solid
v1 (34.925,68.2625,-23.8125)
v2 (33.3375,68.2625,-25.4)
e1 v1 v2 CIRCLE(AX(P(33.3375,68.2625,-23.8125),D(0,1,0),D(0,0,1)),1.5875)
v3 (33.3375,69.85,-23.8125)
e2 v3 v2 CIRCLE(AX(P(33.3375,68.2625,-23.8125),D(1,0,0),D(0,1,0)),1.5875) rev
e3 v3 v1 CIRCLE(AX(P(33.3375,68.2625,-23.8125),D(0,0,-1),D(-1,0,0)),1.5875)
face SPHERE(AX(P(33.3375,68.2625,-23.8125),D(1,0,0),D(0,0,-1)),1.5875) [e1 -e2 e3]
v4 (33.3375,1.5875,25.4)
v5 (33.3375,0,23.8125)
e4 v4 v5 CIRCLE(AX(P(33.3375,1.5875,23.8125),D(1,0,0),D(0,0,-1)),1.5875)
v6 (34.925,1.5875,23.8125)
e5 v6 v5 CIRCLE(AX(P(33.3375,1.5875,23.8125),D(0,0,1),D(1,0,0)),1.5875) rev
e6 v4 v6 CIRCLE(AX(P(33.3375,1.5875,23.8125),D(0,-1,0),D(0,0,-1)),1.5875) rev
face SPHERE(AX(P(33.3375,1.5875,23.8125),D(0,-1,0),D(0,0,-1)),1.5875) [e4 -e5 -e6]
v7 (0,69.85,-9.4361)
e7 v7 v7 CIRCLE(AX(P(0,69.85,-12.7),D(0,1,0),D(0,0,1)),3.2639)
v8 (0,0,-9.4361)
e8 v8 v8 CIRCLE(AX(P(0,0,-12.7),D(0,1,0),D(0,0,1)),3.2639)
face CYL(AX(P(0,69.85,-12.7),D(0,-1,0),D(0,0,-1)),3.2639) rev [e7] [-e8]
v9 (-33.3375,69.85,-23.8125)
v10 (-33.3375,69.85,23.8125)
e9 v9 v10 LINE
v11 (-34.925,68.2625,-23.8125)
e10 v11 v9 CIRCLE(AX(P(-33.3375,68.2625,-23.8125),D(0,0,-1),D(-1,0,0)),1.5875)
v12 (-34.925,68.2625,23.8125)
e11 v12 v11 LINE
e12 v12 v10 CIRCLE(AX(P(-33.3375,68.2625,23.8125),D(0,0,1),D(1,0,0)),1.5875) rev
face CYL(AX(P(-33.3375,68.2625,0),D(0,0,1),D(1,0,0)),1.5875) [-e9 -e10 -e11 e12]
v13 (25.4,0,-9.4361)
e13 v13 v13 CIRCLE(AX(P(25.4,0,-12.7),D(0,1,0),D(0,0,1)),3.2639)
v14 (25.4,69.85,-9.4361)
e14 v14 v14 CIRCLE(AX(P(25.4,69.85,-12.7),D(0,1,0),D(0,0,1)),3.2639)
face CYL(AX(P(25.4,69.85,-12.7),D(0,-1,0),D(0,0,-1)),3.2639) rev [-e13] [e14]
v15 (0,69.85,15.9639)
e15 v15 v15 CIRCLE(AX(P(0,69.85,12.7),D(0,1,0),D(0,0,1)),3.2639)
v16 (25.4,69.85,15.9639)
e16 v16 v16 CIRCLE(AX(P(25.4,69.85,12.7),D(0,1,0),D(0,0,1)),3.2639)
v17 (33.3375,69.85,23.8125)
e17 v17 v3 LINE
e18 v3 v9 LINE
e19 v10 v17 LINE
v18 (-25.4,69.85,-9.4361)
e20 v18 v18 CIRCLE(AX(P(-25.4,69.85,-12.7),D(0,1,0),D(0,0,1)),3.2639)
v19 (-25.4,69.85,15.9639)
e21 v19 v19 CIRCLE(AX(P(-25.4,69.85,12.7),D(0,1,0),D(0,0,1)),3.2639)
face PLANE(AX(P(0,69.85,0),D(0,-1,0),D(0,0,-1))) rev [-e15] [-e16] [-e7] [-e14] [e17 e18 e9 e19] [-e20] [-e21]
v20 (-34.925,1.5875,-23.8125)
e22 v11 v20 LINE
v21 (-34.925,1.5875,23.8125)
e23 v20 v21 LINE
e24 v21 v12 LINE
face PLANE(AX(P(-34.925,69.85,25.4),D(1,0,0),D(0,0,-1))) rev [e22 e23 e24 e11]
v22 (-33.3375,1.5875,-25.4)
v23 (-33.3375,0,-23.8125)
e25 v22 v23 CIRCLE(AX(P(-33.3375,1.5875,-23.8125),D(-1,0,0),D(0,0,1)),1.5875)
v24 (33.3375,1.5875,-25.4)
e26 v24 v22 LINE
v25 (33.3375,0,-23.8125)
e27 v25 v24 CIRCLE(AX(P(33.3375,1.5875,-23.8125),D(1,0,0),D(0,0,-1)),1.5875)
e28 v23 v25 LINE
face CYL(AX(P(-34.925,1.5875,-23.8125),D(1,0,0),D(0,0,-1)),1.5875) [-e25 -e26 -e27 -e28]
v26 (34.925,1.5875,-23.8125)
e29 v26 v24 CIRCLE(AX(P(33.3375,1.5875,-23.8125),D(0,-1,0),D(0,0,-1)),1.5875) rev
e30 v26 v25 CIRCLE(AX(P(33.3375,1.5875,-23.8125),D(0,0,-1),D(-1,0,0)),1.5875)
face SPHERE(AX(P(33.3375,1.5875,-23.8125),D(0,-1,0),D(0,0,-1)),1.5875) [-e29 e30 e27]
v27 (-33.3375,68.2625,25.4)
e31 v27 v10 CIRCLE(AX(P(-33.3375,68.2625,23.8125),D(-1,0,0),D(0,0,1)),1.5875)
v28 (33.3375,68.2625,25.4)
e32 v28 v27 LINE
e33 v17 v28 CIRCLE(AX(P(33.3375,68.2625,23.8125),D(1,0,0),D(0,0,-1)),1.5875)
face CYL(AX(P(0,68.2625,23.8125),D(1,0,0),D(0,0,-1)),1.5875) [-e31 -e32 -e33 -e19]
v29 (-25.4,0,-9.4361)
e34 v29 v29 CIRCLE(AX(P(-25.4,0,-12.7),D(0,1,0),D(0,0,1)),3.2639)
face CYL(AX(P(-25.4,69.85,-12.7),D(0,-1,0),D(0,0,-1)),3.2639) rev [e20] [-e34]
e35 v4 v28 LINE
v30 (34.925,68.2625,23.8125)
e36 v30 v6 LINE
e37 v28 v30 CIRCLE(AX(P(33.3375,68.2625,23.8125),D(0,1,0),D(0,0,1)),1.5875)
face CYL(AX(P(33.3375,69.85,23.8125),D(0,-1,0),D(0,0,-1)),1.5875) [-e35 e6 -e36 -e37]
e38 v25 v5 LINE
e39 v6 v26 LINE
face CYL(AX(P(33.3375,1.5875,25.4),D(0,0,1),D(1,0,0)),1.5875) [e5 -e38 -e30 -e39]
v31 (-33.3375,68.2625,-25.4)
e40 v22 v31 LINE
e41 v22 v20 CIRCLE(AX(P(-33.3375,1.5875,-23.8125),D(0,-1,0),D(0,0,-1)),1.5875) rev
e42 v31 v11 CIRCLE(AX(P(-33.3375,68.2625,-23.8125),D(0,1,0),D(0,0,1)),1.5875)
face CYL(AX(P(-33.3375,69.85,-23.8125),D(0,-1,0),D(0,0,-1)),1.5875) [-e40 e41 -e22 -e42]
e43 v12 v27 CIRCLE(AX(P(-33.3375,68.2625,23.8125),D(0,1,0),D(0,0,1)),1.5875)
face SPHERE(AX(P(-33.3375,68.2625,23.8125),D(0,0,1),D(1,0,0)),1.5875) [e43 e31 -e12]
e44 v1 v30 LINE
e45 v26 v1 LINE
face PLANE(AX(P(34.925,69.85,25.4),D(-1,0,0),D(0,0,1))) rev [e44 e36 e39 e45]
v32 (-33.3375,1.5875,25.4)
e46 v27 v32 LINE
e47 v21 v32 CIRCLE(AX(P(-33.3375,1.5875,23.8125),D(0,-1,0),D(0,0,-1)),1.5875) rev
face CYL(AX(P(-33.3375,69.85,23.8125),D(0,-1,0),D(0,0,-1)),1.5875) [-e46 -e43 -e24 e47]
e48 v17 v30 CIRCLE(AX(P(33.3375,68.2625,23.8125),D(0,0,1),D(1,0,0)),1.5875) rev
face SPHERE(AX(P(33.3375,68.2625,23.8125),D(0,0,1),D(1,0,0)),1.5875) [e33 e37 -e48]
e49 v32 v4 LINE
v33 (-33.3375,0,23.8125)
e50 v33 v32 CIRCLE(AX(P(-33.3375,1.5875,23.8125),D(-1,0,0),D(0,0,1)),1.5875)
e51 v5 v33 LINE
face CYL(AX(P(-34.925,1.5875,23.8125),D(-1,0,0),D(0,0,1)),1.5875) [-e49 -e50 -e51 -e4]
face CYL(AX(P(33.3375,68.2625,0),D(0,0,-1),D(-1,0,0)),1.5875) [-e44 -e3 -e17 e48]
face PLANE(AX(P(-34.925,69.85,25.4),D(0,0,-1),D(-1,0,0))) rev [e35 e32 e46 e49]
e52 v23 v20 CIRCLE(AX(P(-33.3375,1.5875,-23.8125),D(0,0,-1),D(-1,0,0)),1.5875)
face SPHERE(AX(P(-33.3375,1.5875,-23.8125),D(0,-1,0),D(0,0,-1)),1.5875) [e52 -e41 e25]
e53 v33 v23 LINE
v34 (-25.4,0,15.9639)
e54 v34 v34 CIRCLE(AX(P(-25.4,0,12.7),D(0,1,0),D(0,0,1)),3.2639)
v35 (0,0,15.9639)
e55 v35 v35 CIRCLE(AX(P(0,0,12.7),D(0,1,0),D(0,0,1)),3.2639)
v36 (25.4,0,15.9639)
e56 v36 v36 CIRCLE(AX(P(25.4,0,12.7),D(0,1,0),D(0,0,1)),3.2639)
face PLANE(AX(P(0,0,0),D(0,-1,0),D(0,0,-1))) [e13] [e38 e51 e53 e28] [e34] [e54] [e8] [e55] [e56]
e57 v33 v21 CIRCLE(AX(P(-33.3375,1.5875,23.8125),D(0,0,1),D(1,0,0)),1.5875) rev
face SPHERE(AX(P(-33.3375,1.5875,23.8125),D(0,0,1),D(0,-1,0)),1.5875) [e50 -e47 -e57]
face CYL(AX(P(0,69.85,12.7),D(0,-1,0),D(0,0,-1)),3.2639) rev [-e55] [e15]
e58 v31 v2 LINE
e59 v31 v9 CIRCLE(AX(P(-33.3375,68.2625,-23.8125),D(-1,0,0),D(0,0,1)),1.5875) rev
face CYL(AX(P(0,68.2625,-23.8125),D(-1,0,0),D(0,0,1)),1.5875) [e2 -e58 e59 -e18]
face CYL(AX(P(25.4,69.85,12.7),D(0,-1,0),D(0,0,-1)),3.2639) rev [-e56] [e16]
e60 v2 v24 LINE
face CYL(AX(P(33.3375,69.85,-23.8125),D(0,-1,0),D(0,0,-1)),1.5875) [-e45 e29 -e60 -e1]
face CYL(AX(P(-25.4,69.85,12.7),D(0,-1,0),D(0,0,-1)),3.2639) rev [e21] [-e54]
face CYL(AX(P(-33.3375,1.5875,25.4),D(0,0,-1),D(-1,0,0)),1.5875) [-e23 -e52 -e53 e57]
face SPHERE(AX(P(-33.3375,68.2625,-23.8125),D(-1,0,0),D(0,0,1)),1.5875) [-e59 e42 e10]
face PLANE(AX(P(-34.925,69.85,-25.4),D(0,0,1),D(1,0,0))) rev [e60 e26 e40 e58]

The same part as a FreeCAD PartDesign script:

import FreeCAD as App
import Part
import Sketcher
Q = App.Units.Quantity


def edges_at(feature, points):
    """Names of the edges that pass closest to the given points."""
    edges = feature.Shape.Edges
    near = lambda p: min(range(len(edges)), key=lambda i: edges[i].distToShape(Part.Vertex(*p))[0])
    return sorted({f"Edge{near(p) + 1}" for p in points})

doc = App.newDocument("Part")
body = doc.addObject("PartDesign::Body", "Body")

# Sketch on XZ plane
sketch1 = body.newObject("Sketcher::SketchObject", "Sketch")
sketch1.AttachmentSupport = (doc.getObject("XZ_Plane"), [""])
sketch1.MapMode = "FlatFace"
sketch1.addGeometry(Part.LineSegment(App.Vector(-34.9, -25.4, 0), App.Vector(-34.9, 25.4, 0)), False)
sketch1.addGeometry(Part.LineSegment(App.Vector(-34.9, 25.4, 0), App.Vector(34.9, 25.4, 0)), False)
sketch1.addGeometry(Part.LineSegment(App.Vector(34.9, 25.4, 0), App.Vector(34.9, -25.4, 0)), False)
sketch1.addGeometry(Part.LineSegment(App.Vector(34.9, -25.4, 0), App.Vector(-34.9, -25.4, 0)), False)
sketch1.addGeometry(Part.Circle(App.Vector(-25.4, 12.7, 0), App.Vector(0, 0, 1), 3.3), False)
sketch1.addGeometry(Part.Circle(App.Vector(0, 12.7, 0), App.Vector(0, 0, 1), 3.3), False)
sketch1.addGeometry(Part.Circle(App.Vector(25.4, 12.7, 0), App.Vector(0, 0, 1), 3.3), False)
sketch1.addGeometry(Part.Circle(App.Vector(-25.4, -12.7, 0), App.Vector(0, 0, 1), 3.3), False)
sketch1.addGeometry(Part.Circle(App.Vector(0, -12.7, 0), App.Vector(0, 0, 1), 3.3), False)
sketch1.addGeometry(Part.Circle(App.Vector(25.4, -12.7, 0), App.Vector(0, 0, 1), 3.3), False)
sketch1.addConstraint(Sketcher.Constraint("Coincident", 0, 2, 1, 1))
sketch1.addConstraint(Sketcher.Constraint("Coincident", 1, 2, 2, 1))
sketch1.addConstraint(Sketcher.Constraint("Coincident", 2, 2, 3, 1))
sketch1.addConstraint(Sketcher.Constraint("Coincident", 3, 2, 0, 1))
sketch1.addConstraint(Sketcher.Constraint("Vertical", 0))
sketch1.addConstraint(Sketcher.Constraint("Horizontal", 1))
sketch1.addConstraint(Sketcher.Constraint("Vertical", 2))
sketch1.addConstraint(Sketcher.Constraint("Horizontal", 3))
sketch1.addConstraint(Sketcher.Constraint("Equal", 4, 5))
sketch1.addConstraint(Sketcher.Constraint("Equal", 5, 6))
sketch1.addConstraint(Sketcher.Constraint("Equal", 6, 7))
sketch1.addConstraint(Sketcher.Constraint("Equal", 7, 8))
sketch1.addConstraint(Sketcher.Constraint("Equal", 8, 9))
sketch1.addConstraint(Sketcher.Constraint("Symmetric", 6, 3, 7, 3, -1, 1))
sketch1.addConstraint(Sketcher.Constraint("Symmetric", 5, 3, 8, 3, -1, 1))
sketch1.addConstraint(Sketcher.Constraint("Symmetric", 4, 3, 9, 3, -1, 1))
sketch1.addConstraint(Sketcher.Constraint("Symmetric", 0, 2, 2, 2, -1, 1))
sketch1.addConstraint(Sketcher.Constraint("Symmetric", 4, 3, 6, 3, -2))
sketch1.addConstraint(Sketcher.Constraint("PointOnObject", 5, 3, -2))
sketch1.addConstraint(Sketcher.Constraint("Horizontal", 4, 3, 5, 3))
sketch1.addConstraint(Sketcher.Constraint("DistanceY", 0, 1, 0, 2, Q("2 in")))
sketch1.addConstraint(Sketcher.Constraint("Diameter", 4, Q("0.257 in")))
sketch1.addConstraint(Sketcher.Constraint("DistanceX", 4, 3, -1, 1, Q("1 in")))
sketch1.addConstraint(Sketcher.Constraint("DistanceY", 7, 3, 4, 3, Q("1 in")))
sketch1.addConstraint(Sketcher.Constraint("DistanceX", 1, 1, 1, 2, Q("2.75 in")))
pad1 = body.newObject("PartDesign::Pad", "Pad")
pad1.Profile = sketch1
pad1.Length = Q("2.75 in")
pad1.Reversed = True
doc.recompute()

fillet = body.newObject("PartDesign::Fillet", "Fillet")
fillet.Base = (pad1, edges_at(pad1, [
    (-34.925, 69.85, 0),
    (0, 69.85, 25.4),
    (34.925, 69.85, 0),
    (0, 0, 25.4),
    (-34.925, 0, 0),
    (0, 0, -25.4),
    (34.925, 0, 0),
    (34.925, 34.925, 25.4),
    (-34.925, 34.925, 25.4),
    (-34.925, 34.925, -25.4),
    (34.925, 34.925, -25.4),
    (0, 69.85, -25.4),
]))
fillet.Radius = Q("0.0625 in")

doc.recompute()
